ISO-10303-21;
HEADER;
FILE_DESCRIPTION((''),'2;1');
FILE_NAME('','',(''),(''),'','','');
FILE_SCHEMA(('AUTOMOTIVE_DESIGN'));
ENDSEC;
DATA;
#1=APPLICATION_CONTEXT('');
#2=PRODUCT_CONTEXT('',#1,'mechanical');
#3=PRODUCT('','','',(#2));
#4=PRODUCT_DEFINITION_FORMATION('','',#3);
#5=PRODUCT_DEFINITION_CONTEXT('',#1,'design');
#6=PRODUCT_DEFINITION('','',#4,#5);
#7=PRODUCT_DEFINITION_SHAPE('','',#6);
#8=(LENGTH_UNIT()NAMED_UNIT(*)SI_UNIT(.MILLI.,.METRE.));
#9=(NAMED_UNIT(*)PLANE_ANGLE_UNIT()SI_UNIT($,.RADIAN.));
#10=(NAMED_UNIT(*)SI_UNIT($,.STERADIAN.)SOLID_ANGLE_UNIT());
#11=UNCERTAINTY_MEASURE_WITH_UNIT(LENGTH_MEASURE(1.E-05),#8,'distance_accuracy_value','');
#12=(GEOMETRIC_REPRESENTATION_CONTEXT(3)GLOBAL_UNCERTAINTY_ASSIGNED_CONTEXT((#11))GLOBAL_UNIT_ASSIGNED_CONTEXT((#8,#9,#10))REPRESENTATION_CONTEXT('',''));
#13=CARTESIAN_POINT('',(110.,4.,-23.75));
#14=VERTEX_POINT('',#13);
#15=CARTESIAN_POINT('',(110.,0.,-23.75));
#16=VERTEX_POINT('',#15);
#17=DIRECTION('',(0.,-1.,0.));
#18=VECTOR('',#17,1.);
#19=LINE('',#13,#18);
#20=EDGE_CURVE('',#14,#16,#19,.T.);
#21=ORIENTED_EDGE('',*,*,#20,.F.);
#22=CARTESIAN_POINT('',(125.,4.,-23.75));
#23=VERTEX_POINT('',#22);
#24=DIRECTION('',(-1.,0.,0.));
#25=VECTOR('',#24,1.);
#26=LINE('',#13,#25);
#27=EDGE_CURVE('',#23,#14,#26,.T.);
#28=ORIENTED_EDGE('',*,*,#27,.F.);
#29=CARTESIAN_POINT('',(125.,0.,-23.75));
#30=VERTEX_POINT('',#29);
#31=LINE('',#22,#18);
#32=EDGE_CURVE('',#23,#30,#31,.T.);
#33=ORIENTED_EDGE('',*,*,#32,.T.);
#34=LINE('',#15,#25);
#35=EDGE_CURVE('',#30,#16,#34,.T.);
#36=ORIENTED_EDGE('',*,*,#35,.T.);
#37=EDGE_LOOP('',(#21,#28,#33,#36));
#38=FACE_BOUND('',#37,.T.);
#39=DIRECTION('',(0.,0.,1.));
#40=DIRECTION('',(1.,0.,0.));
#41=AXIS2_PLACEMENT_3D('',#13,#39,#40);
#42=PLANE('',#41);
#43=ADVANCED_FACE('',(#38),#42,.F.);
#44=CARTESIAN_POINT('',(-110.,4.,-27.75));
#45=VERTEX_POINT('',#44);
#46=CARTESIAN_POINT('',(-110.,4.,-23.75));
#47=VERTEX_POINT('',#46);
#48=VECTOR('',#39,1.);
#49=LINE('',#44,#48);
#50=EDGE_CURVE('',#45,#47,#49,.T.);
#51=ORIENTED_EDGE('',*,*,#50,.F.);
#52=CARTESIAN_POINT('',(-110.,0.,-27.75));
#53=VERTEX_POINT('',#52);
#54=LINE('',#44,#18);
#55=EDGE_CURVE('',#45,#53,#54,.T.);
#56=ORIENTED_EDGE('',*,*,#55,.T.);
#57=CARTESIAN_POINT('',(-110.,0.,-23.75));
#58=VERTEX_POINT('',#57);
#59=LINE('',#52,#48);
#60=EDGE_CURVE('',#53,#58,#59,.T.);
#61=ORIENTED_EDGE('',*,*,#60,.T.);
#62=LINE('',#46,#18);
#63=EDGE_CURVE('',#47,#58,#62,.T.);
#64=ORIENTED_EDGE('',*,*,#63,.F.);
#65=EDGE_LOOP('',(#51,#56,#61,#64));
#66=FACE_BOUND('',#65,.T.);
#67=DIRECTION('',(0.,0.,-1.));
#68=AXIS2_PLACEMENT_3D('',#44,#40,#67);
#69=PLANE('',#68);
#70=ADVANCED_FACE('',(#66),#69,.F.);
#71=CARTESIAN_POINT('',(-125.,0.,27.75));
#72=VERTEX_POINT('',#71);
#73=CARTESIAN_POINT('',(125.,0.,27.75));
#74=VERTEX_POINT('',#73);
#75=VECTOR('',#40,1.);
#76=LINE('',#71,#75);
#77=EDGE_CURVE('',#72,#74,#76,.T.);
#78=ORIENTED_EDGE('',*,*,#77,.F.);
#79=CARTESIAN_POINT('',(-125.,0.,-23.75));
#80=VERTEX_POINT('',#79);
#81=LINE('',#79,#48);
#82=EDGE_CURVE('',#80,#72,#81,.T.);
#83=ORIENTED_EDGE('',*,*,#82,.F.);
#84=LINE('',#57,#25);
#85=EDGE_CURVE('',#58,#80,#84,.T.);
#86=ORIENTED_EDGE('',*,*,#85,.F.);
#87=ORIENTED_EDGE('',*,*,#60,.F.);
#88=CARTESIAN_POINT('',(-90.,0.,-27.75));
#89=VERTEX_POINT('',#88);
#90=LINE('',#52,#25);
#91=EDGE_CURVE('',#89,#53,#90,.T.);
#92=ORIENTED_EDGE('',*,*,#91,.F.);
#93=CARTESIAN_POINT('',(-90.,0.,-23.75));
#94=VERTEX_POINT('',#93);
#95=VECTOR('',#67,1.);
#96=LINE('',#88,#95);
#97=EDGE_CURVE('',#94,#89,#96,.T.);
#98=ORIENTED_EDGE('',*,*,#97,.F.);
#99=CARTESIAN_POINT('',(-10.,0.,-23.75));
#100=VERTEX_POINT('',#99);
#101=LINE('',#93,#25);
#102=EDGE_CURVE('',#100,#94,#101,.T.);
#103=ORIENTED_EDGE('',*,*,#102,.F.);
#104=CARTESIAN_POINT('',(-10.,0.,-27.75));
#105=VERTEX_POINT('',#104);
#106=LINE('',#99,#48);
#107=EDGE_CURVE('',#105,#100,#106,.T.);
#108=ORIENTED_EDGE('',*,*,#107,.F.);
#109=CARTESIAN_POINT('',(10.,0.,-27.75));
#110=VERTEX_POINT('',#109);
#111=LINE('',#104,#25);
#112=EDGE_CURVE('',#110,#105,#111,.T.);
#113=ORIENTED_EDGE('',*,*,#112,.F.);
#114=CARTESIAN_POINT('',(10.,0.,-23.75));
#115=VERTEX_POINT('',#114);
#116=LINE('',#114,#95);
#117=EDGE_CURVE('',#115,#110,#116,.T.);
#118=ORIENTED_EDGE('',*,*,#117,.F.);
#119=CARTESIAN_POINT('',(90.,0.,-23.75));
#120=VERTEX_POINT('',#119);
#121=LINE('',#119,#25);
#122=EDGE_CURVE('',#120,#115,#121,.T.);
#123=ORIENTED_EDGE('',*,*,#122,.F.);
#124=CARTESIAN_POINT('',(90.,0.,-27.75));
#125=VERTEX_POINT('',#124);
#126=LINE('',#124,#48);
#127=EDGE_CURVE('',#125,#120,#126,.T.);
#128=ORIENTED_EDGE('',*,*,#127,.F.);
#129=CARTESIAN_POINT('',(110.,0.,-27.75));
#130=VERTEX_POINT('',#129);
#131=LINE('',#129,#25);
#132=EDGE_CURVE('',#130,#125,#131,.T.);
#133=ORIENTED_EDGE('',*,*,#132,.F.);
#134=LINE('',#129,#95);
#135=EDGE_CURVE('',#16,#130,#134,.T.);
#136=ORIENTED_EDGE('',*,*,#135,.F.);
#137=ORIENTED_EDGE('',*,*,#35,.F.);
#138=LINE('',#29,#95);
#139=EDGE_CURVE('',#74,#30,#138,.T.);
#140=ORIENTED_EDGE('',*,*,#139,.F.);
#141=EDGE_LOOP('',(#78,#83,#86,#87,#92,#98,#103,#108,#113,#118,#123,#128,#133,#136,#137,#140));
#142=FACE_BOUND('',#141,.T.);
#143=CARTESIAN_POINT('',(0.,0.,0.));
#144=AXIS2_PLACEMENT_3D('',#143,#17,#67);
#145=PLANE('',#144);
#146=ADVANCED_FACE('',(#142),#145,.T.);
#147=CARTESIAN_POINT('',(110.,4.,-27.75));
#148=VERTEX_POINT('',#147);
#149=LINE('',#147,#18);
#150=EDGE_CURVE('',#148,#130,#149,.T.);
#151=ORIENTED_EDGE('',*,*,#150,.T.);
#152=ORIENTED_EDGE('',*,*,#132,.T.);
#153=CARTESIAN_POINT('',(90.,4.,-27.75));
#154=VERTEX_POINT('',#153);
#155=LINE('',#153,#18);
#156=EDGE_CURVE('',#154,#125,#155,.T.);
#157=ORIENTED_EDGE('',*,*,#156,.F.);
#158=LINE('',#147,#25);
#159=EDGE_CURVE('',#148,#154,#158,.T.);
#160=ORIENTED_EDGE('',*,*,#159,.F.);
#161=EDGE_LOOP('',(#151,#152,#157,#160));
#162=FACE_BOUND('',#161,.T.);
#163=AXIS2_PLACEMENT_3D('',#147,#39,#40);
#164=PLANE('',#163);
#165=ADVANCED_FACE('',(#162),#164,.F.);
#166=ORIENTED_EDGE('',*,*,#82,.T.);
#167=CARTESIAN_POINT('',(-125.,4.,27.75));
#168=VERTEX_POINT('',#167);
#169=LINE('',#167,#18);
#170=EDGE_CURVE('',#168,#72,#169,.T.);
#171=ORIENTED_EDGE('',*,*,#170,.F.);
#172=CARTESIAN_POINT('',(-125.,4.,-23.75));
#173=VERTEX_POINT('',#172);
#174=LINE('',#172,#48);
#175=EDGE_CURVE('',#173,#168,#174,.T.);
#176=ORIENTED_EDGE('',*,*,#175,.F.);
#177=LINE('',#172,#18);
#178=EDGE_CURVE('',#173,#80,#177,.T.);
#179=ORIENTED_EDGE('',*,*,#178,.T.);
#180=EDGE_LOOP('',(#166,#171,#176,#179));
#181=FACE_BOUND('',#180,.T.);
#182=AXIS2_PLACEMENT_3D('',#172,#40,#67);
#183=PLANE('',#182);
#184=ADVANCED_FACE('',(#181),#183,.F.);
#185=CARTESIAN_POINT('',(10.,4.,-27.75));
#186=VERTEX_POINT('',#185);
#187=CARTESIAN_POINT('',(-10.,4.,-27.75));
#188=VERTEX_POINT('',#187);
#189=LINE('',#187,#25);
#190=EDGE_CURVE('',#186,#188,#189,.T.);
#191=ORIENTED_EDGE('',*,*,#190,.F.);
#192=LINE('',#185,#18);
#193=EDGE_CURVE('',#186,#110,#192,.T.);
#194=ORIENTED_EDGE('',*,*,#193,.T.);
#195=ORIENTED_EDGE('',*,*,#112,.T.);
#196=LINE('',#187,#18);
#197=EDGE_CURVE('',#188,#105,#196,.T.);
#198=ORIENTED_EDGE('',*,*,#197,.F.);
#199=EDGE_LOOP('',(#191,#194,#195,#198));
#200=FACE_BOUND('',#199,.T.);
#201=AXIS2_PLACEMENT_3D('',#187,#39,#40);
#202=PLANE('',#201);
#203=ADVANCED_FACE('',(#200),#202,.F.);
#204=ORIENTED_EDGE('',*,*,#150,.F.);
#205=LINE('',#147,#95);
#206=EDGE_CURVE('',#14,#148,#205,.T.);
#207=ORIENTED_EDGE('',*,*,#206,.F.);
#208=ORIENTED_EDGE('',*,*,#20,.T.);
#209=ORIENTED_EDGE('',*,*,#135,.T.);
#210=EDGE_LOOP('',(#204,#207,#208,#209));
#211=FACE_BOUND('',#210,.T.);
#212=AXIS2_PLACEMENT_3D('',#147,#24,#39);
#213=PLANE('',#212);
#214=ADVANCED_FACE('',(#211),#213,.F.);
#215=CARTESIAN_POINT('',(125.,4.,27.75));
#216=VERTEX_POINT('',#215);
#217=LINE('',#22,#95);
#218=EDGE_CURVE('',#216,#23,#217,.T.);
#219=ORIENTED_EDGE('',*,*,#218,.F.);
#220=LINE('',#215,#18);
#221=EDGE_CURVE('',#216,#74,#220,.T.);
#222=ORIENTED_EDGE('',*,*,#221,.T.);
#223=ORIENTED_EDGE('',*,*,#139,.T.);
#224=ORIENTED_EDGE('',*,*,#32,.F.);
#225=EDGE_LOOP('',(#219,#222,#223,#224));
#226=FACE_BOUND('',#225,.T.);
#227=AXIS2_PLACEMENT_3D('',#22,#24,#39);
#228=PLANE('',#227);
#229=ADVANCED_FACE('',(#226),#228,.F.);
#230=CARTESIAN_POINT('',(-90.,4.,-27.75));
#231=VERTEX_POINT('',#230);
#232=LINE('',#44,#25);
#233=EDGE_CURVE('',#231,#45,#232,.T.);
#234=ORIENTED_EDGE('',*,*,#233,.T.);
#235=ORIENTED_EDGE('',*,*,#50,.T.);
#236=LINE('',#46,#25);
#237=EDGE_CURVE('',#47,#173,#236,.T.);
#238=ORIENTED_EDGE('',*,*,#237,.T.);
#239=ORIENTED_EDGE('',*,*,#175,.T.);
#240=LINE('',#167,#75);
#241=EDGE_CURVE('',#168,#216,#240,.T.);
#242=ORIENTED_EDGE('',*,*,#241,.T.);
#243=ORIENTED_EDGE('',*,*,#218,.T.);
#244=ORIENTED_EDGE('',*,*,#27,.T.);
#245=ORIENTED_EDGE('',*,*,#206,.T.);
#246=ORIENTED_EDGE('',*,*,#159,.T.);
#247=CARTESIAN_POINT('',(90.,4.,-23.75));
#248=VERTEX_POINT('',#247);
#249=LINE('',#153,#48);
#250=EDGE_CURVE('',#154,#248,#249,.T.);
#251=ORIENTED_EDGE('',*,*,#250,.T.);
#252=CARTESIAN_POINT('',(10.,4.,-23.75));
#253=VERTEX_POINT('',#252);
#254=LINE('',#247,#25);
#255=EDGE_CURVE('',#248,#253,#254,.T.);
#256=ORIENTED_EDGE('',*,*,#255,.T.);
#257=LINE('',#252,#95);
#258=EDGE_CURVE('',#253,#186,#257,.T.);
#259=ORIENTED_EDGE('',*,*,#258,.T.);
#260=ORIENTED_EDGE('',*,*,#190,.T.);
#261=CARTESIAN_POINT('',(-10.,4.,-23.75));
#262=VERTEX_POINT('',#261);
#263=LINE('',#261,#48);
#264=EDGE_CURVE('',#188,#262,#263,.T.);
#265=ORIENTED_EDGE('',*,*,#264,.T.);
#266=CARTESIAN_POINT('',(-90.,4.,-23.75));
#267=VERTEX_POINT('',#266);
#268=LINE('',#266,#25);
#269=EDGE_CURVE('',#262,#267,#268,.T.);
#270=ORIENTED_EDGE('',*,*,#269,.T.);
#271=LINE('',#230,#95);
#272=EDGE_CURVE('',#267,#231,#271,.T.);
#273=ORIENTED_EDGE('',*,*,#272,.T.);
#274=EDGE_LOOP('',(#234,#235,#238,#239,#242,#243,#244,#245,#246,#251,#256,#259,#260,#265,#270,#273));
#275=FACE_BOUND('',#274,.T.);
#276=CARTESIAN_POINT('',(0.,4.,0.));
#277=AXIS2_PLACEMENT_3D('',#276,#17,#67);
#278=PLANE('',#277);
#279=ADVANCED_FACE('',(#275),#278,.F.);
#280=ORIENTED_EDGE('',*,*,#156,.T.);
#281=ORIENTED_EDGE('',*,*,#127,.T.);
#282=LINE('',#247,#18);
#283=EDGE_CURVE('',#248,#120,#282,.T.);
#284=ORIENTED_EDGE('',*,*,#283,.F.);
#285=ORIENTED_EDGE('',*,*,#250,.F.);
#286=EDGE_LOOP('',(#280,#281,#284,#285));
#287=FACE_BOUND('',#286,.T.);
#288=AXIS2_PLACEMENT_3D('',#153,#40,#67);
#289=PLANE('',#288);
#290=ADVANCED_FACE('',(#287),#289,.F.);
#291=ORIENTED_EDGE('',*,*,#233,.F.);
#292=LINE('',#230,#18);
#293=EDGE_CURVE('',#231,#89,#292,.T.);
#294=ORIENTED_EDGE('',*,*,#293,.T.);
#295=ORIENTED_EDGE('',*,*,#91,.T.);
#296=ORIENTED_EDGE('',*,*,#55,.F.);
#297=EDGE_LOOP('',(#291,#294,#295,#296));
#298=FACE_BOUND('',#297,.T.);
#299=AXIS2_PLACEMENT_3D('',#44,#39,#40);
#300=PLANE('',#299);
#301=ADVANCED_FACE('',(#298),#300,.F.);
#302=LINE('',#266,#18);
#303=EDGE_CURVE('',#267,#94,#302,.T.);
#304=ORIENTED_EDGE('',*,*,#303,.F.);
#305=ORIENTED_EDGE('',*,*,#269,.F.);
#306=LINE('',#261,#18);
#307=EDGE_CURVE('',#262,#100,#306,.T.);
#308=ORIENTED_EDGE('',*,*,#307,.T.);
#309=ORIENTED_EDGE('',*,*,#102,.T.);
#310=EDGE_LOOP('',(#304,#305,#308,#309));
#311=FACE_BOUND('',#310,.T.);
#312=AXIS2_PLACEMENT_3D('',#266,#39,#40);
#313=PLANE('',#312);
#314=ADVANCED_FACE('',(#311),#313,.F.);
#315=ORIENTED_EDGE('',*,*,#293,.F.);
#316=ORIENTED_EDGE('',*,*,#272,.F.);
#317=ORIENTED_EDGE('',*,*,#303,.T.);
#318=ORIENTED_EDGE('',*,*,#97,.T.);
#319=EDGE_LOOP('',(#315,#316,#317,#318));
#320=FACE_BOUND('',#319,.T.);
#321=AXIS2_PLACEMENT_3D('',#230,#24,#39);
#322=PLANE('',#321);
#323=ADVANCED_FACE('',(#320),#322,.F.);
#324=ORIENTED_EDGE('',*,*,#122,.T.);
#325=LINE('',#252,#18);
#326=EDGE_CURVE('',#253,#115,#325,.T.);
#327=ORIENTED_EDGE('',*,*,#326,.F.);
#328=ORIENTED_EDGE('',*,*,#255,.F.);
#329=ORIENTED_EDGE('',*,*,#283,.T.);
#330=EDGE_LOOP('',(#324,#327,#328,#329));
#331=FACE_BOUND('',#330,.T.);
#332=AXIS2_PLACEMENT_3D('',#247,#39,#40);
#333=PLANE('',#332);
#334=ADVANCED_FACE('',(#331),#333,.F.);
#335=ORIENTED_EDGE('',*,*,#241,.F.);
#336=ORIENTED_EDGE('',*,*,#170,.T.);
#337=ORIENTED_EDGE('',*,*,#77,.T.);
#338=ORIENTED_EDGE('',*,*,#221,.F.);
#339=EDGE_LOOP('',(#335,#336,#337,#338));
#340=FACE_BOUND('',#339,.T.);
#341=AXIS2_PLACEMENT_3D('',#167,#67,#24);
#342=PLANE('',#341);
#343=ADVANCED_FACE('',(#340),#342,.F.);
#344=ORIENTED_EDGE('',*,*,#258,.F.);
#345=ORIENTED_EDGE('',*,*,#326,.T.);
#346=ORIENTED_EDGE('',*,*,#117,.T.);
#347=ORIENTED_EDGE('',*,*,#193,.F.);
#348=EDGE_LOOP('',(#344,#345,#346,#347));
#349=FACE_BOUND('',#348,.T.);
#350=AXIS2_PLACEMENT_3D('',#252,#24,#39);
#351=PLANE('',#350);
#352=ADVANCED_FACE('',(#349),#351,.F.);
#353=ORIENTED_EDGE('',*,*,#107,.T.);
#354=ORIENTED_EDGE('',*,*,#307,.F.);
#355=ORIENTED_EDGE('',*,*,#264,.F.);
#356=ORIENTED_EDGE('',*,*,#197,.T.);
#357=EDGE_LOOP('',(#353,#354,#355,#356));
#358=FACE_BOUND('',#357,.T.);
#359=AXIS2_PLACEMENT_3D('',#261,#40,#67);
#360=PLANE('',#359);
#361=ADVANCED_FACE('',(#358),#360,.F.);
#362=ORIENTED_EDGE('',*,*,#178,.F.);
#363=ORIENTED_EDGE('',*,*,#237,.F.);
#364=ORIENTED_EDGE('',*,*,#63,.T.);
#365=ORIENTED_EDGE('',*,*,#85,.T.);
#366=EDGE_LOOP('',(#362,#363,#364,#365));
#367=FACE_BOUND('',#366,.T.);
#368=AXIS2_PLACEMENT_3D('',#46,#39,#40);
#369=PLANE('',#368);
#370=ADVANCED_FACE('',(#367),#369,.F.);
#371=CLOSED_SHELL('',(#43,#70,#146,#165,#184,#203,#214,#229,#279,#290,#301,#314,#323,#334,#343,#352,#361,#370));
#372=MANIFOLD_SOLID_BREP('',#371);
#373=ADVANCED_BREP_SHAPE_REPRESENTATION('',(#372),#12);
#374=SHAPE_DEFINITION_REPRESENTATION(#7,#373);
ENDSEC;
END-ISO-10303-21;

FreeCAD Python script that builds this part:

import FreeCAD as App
import Part
import Sketcher

V = App.Vector
Q = App.Units.Quantity

doc = App.newDocument("Part")
body = doc.addObject("PartDesign::Body", "Body")

sketch1 = doc.addObject("Sketcher::SketchObject", "Sketch")
body.addObject(sketch1)
sketch1.AttachmentSupport = (doc.XZ_Plane, [""])
sketch1.MapMode = "FlatFace"
sketch1.addGeometry([
    Part.LineSegment(V(-90, -27.75, 0), V(-110, -27.75, 0)),
    Part.LineSegment(V(-110, -27.75, 0), V(-110, -23.75, 0)),
    Part.LineSegment(V(-110, -23.75, 0), V(-125, -23.75, 0)),
    Part.LineSegment(V(-125, -23.75, 0), V(-125, 27.75, 0)),
    Part.LineSegment(V(-125, 27.75, 0), V(125, 27.75, 0)),
    Part.LineSegment(V(125, 27.75, 0), V(125, -23.75, 0)),
    Part.LineSegment(V(125, -23.75, 0), V(110, -23.75, 0)),
    Part.LineSegment(V(110, -23.75, 0), V(110, -27.75, 0)),
    Part.LineSegment(V(110, -27.75, 0), V(90, -27.75, 0)),
    Part.LineSegment(V(90, -27.75, 0), V(90, -23.75, 0)),
    Part.LineSegment(V(90, -23.75, 0), V(10, -23.75, 0)),
    Part.LineSegment(V(10, -23.75, 0), V(10, -27.75, 0)),
    Part.LineSegment(V(10, -27.75, 0), V(-10, -27.75, 0)),
    Part.LineSegment(V(-10, -27.75, 0), V(-10, -23.75, 0)),
    Part.LineSegment(V(-10, -23.75, 0), V(-90, -23.75, 0)),
    Part.LineSegment(V(-90, -23.75, 0), V(-90, -27.75, 0)),
], False)
sketch1.addConstraint([
    Sketcher.Constraint("Coincident", 0, 2, 1, 1),
    Sketcher.Constraint("Coincident", 1, 2, 2, 1),
    Sketcher.Constraint("Coincident", 2, 2, 3, 1),
    Sketcher.Constraint("Coincident", 3, 2, 4, 1),
    Sketcher.Constraint("Coincident", 4, 2, 5, 1),
    Sketcher.Constraint("Coincident", 5, 2, 6, 1),
    Sketcher.Constraint("Coincident", 6, 2, 7, 1),
    Sketcher.Constraint("Coincident", 7, 2, 8, 1),
    Sketcher.Constraint("Coincident", 8, 2, 9, 1),
    Sketcher.Constraint("Coincident", 9, 2, 10, 1),
    Sketcher.Constraint("Coincident", 10, 2, 11, 1),
    Sketcher.Constraint("Coincident", 11, 2, 12, 1),
    Sketcher.Constraint("Coincident", 12, 2, 13, 1),
    Sketcher.Constraint("Coincident", 13, 2, 14, 1),
    Sketcher.Constraint("Coincident", 14, 2, 15, 1),
    Sketcher.Constraint("Coincident", 15, 2, 0, 1),
    Sketcher.Constraint("Horizontal", 0),
    Sketcher.Constraint("Vertical", 1),
    Sketcher.Constraint("Horizontal", 2),
    Sketcher.Constraint("Vertical", 3),
    Sketcher.Constraint("Horizontal", 4),
    Sketcher.Constraint("Vertical", 5),
    Sketcher.Constraint("Horizontal", 6),
    Sketcher.Constraint("Vertical", 7),
    Sketcher.Constraint("Horizontal", 8),
    Sketcher.Constraint("Vertical", 9),
    Sketcher.Constraint("Horizontal", 10),
    Sketcher.Constraint("Vertical", 11),
    Sketcher.Constraint("Horizontal", 12),
    Sketcher.Constraint("Vertical", 13),
    Sketcher.Constraint("Horizontal", 14),
    Sketcher.Constraint("Vertical", 15),
    Sketcher.Constraint("Symmetric", 2, 2, 5, 2, -2),
    Sketcher.Constraint("Symmetric", 0, 2, 7, 2, -2),
    Sketcher.Constraint("Symmetric", 10, 2, 13, 2, -2),
    Sketcher.Constraint("Horizontal", 6, 2, 9, 2),
    Sketcher.Constraint("Horizontal", 8, 2, 11, 2),
    Sketcher.Constraint("Equal", 0, 8),
    Sketcher.Constraint("Equal", 8, 12),
    Sketcher.Constraint("DistanceX", 0, 2, 0, 1, Q("20 mm")),
    Sketcher.Constraint("DistanceX", 2, 2, 2, 1, Q("15 mm")),
    Sketcher.Constraint("DistanceX", 4, 1, 4, 2, Q("250 mm")),
    Sketcher.Constraint("DistanceY", 1, 1, 1, 2, Q("4 mm")),
    Sketcher.Constraint("DistanceY", 3, 1, 3, 2, Q("51.5 mm")),
    Sketcher.Constraint("DistanceY", 0, 2, -1, 1, Q("27.75 mm")),
])
pad1 = doc.addObject("PartDesign::Pad", "Pad")
body.addObject(pad1)
pad1.Profile = sketch1
pad1.Length = 4
pad1.Reversed = True

doc.recompute()
